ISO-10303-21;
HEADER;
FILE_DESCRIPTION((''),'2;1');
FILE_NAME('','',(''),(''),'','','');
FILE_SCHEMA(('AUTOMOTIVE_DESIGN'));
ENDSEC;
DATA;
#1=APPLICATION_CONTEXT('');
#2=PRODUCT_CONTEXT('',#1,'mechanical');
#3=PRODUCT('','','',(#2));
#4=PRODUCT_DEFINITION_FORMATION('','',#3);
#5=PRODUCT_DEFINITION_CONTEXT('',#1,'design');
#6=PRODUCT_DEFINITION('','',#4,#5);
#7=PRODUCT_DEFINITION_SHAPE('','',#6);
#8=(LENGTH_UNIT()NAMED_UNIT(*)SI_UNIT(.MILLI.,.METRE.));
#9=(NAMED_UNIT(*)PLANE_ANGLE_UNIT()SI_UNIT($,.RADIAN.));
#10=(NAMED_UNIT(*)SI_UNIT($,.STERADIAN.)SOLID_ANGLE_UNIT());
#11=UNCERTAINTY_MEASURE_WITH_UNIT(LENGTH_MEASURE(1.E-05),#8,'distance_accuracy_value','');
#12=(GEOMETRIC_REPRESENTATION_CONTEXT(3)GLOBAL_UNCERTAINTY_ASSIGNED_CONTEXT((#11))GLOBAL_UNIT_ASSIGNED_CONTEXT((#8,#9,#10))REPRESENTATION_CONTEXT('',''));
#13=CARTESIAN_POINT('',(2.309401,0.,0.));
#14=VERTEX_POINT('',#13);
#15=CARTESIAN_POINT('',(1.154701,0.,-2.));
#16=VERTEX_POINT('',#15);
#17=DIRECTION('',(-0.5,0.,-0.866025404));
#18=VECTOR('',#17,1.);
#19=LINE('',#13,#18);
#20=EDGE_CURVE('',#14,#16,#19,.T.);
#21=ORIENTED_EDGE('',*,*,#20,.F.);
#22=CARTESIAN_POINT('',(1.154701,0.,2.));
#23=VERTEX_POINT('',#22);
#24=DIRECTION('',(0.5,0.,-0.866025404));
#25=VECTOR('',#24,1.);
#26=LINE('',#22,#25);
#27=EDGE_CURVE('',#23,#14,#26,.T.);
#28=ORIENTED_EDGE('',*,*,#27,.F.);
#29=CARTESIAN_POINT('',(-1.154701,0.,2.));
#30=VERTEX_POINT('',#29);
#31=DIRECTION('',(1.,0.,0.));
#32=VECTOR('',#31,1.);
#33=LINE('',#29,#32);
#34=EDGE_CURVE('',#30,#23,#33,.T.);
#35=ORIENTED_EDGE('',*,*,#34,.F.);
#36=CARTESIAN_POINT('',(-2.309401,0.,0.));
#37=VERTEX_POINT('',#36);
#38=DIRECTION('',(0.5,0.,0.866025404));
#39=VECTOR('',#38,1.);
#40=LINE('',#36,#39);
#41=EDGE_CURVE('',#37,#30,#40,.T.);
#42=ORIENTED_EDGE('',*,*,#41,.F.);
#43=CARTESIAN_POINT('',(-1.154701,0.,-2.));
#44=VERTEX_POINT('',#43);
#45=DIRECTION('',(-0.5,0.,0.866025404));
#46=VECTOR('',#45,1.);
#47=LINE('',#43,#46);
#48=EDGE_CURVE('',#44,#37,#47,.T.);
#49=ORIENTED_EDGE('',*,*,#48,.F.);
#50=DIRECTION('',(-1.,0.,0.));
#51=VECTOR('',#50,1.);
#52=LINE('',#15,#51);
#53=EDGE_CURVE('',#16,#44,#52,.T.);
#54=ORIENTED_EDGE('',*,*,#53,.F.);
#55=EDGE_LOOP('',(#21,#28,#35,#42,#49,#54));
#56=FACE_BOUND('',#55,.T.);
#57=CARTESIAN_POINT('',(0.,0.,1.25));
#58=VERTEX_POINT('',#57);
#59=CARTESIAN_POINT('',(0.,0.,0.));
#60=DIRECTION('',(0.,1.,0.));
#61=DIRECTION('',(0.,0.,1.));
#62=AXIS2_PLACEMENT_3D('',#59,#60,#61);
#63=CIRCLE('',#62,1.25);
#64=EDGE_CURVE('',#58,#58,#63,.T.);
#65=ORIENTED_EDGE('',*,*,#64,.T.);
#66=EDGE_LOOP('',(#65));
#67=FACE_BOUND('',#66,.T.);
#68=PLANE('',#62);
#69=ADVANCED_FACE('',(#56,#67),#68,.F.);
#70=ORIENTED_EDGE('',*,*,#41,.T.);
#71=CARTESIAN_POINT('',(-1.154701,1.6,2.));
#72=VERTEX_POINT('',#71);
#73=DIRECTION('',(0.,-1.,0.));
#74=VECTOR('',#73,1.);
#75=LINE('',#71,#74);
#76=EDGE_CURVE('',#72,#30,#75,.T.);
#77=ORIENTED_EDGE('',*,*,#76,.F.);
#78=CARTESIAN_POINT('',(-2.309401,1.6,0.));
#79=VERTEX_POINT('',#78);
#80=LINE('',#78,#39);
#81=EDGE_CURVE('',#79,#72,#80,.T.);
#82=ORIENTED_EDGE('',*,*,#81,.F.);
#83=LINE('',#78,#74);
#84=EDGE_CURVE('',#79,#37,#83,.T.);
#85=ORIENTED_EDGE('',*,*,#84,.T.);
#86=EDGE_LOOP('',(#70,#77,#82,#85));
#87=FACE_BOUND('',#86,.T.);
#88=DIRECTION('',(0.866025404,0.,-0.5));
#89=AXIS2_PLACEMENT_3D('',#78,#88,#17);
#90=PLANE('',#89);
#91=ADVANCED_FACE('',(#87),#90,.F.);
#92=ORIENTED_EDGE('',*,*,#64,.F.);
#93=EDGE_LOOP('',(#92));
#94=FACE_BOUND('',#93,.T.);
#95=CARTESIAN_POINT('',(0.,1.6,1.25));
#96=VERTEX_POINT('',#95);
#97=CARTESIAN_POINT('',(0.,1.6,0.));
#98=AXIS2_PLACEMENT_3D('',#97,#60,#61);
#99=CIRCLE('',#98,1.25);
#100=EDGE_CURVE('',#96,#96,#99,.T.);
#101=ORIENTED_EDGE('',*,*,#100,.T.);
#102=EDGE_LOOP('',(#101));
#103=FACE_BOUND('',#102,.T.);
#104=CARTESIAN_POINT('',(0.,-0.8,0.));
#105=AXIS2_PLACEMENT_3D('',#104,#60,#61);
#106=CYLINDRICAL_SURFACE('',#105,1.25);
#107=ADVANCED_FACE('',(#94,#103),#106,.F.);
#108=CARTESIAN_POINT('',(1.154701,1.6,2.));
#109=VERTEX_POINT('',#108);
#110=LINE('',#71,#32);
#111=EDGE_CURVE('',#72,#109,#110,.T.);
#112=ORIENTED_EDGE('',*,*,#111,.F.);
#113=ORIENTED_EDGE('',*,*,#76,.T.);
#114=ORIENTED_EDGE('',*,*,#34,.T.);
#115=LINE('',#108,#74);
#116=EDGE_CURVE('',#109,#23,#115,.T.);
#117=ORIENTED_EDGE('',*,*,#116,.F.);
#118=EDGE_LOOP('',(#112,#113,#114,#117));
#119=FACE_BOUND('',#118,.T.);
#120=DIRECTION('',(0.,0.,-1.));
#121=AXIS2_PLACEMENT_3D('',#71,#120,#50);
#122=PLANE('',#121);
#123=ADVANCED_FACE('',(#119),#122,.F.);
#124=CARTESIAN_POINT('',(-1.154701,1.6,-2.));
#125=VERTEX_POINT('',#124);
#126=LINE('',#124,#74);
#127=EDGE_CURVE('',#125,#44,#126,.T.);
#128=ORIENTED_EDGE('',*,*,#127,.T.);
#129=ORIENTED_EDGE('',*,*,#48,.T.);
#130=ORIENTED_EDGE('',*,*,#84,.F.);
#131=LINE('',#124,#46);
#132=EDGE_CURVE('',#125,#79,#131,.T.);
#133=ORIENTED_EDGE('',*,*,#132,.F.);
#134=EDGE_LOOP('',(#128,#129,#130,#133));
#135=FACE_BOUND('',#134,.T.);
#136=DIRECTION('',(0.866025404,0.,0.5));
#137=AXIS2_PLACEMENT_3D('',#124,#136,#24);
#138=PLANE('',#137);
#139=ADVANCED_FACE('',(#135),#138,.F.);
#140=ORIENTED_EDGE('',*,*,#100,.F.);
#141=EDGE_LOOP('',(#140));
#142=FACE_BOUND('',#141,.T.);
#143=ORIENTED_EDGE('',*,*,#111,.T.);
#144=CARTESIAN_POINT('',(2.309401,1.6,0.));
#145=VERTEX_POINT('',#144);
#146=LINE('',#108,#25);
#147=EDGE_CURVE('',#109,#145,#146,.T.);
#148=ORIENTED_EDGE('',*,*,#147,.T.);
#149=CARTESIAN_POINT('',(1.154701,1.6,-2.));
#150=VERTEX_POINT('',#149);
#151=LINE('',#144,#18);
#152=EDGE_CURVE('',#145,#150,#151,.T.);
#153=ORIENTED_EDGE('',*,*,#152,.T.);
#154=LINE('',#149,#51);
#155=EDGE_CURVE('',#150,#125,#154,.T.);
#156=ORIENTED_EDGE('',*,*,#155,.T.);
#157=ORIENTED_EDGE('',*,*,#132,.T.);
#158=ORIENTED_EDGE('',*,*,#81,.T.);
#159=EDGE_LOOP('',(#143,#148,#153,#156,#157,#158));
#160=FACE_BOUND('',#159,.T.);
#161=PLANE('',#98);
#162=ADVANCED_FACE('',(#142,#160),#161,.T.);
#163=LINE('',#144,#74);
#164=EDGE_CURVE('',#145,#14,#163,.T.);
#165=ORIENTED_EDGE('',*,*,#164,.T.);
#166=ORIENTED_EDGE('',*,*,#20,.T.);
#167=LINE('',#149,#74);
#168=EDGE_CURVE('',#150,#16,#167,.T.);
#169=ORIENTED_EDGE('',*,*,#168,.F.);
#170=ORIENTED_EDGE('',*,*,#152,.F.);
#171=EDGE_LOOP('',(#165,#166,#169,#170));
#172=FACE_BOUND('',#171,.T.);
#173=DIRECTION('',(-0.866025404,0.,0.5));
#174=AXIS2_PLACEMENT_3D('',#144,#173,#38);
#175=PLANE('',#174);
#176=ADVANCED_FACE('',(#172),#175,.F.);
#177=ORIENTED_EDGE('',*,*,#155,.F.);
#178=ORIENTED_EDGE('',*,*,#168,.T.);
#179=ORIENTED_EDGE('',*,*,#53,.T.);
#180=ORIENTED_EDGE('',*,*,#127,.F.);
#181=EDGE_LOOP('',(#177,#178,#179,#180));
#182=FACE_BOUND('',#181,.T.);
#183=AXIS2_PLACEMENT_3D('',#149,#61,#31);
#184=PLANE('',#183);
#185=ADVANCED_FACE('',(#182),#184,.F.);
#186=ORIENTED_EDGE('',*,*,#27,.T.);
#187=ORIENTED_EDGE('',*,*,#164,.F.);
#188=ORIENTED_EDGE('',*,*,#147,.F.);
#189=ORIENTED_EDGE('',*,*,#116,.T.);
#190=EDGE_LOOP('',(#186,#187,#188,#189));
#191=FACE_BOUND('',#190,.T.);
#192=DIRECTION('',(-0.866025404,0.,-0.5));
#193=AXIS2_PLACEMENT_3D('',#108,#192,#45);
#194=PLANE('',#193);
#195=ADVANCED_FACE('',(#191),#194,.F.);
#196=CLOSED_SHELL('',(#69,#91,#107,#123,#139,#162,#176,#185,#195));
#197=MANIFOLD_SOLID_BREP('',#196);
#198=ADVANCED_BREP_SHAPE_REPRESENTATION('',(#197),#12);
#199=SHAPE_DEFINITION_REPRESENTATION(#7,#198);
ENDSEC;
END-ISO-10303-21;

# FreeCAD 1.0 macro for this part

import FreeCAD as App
import Part
import Sketcher

V = App.Vector
Q = App.Units.Quantity

doc = App.newDocument("Part")
body = doc.addObject("PartDesign::Body", "Body")

sketch1 = body.newObject("Sketcher::SketchObject", "Sketch")
sketch1.AttachmentSupport = (doc.getObject("XZ_Plane"), [""])
sketch1.MapMode = "FlatFace"
sketch1.addGeometry(Part.LineSegment(V(-2.309401, 0, 0), V(-1.154701, 2, 0)), False)
sketch1.addGeometry(Part.LineSegment(V(-1.154701, 2, 0), V(1.154701, 2, 0)), False)
sketch1.addGeometry(Part.LineSegment(V(1.154701, 2, 0), V(2.309401, 0, 0)), False)
sketch1.addGeometry(Part.LineSegment(V(2.309401, 0, 0), V(1.154701, -2, 0)), False)
sketch1.addGeometry(Part.LineSegment(V(1.154701, -2, 0), V(-1.154701, -2, 0)), False)
sketch1.addGeometry(Part.LineSegment(V(-1.154701, -2, 0), V(-2.309401, 0, 0)), False)
sketch1.addConstraint(Sketcher.Constraint("Coincident", 0, 2, 1, 1))
sketch1.addConstraint(Sketcher.Constraint("Coincident", 1, 2, 2, 1))
sketch1.addConstraint(Sketcher.Constraint("Coincident", 2, 2, 3, 1))
sketch1.addConstraint(Sketcher.Constraint("Coincident", 3, 2, 4, 1))
sketch1.addConstraint(Sketcher.Constraint("Coincident", 4, 2, 5, 1))
sketch1.addConstraint(Sketcher.Constraint("Coincident", 5, 2, 0, 1))
sketch1.addConstraint(Sketcher.Constraint("Horizontal", 1))
sketch1.addConstraint(Sketcher.Constraint("Horizontal", 4))
sketch1.addConstraint(Sketcher.Constraint("Symmetric", 0, 2, 3, 2, -1, 1))
sketch1.addConstraint(Sketcher.Constraint("Symmetric", 2, 2, 5, 2, -1, 1))
sketch1.addConstraint(Sketcher.Constraint("PointOnObject", 2, 2, -1))
sketch1.addConstraint(Sketcher.Constraint("Parallel", 2, 5))
sketch1.addConstraint(Sketcher.Constraint("Vertical", 1, 2, 3, 2))
sketch1.addConstraint(Sketcher.Constraint("Angle", 0, Q("60 deg")))
sketch1.addConstraint(Sketcher.Constraint("DistanceY", -1, 1, 0, 2, 2.0))
sketch1.addConstraint(Sketcher.Constraint("DistanceX", 1, 1, 1, 2, 2.309401))
pad1 = body.newObject("PartDesign::Pad", "Pad")
pad1.Profile = sketch1
pad1.Length = 1.6
pad1.Reversed = True

sketch2 = body.newObject("Sketcher::SketchObject", "Sketch001")
sketch2.AttachmentSupport = (doc.getObject("XZ_Plane"), [""])
sketch2.MapMode = "FlatFace"
sketch2.AttachmentOffset = App.Placement(V(0, 0, -1.6), App.Rotation())
sketch2.addGeometry(Part.Circle(V(0, 0, 0), V(0, 0, 1), 1.25), False)
sketch2.addConstraint(Sketcher.Constraint("Coincident", 0, 3, -1, 1))
sketch2.addConstraint(Sketcher.Constraint("Diameter", 0, 2.5))
pocket1 = body.newObject("PartDesign::Pocket", "Pocket")
pocket1.Profile = sketch2
pocket1.Length = 2.4
pocket1.Reversed = True

doc.recompute()
